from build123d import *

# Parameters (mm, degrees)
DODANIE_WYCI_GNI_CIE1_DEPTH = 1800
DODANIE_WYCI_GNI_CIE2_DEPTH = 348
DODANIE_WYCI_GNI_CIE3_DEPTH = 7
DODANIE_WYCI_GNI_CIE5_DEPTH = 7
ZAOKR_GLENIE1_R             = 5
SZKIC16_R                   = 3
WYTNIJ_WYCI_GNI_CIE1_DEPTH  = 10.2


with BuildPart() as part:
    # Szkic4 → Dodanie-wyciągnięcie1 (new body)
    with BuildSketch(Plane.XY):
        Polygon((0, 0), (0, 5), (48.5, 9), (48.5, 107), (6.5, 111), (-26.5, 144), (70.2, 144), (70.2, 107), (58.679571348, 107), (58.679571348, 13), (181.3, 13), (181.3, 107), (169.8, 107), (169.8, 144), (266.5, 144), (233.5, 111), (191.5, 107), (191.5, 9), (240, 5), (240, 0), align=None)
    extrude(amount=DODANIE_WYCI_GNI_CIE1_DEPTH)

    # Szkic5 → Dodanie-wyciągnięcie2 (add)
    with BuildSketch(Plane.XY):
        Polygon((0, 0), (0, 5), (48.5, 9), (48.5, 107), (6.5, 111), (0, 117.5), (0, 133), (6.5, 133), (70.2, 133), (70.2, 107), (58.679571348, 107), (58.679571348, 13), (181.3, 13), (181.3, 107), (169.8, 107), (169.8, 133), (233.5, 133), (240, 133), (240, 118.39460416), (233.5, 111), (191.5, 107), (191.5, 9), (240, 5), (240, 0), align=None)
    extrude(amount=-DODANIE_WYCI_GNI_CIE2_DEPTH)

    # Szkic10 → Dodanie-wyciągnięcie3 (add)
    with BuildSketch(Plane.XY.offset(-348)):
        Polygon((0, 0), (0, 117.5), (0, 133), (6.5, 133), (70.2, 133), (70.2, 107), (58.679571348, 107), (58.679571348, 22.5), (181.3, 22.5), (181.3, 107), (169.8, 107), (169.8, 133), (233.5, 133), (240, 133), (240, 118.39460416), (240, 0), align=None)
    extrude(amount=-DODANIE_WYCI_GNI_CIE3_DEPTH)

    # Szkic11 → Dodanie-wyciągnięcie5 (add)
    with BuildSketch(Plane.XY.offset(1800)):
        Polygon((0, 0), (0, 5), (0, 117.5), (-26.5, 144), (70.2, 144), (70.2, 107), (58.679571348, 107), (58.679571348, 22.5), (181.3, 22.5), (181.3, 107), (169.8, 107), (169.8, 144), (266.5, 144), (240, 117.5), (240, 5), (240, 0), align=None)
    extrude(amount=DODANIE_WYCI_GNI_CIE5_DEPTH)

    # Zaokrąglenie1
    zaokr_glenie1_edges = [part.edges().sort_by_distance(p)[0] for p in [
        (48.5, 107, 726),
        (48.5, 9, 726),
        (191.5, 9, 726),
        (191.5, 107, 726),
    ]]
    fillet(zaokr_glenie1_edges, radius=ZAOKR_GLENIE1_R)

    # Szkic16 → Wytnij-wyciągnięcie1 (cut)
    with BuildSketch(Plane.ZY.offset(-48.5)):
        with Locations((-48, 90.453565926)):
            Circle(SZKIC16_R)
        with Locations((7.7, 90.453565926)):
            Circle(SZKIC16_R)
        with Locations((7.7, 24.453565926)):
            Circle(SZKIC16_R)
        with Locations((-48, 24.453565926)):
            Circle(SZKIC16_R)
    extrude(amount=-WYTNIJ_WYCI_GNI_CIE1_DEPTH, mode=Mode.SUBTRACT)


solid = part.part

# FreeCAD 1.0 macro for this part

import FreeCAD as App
import Part
import Sketcher

V = App.Vector
Q = App.Units.Quantity


def edges_at(feature, points):
    """Names of the edges that pass closest to the given points."""
    edges = feature.Shape.Edges
    near = lambda p: min(range(len(edges)), key=lambda i: edges[i].distToShape(Part.Vertex(*p))[0])
    return sorted({f"Edge{near(p) + 1}" for p in points})

doc = App.newDocument("Part")
body = doc.addObject("PartDesign::Body", "Body")

sketch1 = doc.addObject("Sketcher::SketchObject", "Sketch")
body.addObject(sketch1)
sketch1.AttachmentSupport = (doc.XY_Plane, [""])
sketch1.MapMode = "FlatFace"
sketch1.addGeometry([
    Part.LineSegment(V(0, 5, 0), V(0, 0, 0)),
    Part.LineSegment(V(0, 0, 0), V(240, 0, 0)),
    Part.LineSegment(V(240, 0, 0), V(240, 5, 0)),
    Part.LineSegment(V(240, 5, 0), V(192, 9, 0)),
    Part.LineSegment(V(192, 9, 0), V(192, 107, 0)),
    Part.LineSegment(V(192, 107, 0), V(234, 111, 0)),
    Part.LineSegment(V(234, 111, 0), V(266, 144, 0)),
    Part.LineSegment(V(266, 144, 0), V(170, 144, 0)),
    Part.LineSegment(V(170, 144, 0), V(170, 107, 0)),
    Part.LineSegment(V(170, 107, 0), V(181, 107, 0)),
    Part.LineSegment(V(181, 107, 0), V(181, 13, 0)),
    Part.LineSegment(V(181, 13, 0), V(59, 13, 0)),
    Part.LineSegment(V(59, 13, 0), V(59, 107, 0)),
    Part.LineSegment(V(59, 107, 0), V(70, 107, 0)),
    Part.LineSegment(V(70, 107, 0), V(70, 144, 0)),
    Part.LineSegment(V(70, 144, 0), V(-26, 144, 0)),
    Part.LineSegment(V(-26, 144, 0), V(6, 111, 0)),
    Part.LineSegment(V(6, 111, 0), V(48, 107, 0)),
    Part.LineSegment(V(48, 107, 0), V(48, 9, 0)),
    Part.LineSegment(V(48, 9, 0), V(0, 5, 0)),
], False)
sketch1.addConstraint([
    Sketcher.Constraint("Coincident", 0, 2, 1, 1),
    Sketcher.Constraint("Coincident", 1, 2, 2, 1),
    Sketcher.Constraint("Coincident", 2, 2, 3, 1),
    Sketcher.Constraint("Coincident", 3, 2, 4, 1),
    Sketcher.Constraint("Coincident", 4, 2, 5, 1),
    Sketcher.Constraint("Coincident", 5, 2, 6, 1),
    Sketcher.Constraint("Coincident", 6, 2, 7, 1),
    Sketcher.Constraint("Coincident", 7, 2, 8, 1),
    Sketcher.Constraint("Coincident", 8, 2, 9, 1),
    Sketcher.Constraint("Coincident", 9, 2, 10, 1),
    Sketcher.Constraint("Coincident", 10, 2, 11, 1),
    Sketcher.Constraint("Coincident", 11, 2, 12, 1),
    Sketcher.Constraint("Coincident", 12, 2, 13, 1),
    Sketcher.Constraint("Coincident", 13, 2, 14, 1),
    Sketcher.Constraint("Coincident", 14, 2, 15, 1),
    Sketcher.Constraint("Coincident", 15, 2, 16, 1),
    Sketcher.Constraint("Coincident", 16, 2, 17, 1),
    Sketcher.Constraint("Coincident", 17, 2, 18, 1),
    Sketcher.Constraint("Coincident", 18, 2, 19, 1),
    Sketcher.Constraint("Coincident", 19, 2, 0, 1),
    Sketcher.Constraint("Vertical", 0),
    Sketcher.Constraint("Horizontal", 1),
    Sketcher.Constraint("Vertical", 2),
    Sketcher.Constraint("Vertical", 4),
    Sketcher.Constraint("Horizontal", 7),
    Sketcher.Constraint("Vertical", 8),
    Sketcher.Constraint("Horizontal", 9),
    Sketcher.Constraint("Vertical", 10),
    Sketcher.Constraint("Horizontal", 11),
    Sketcher.Constraint("Vertical", 12),
    Sketcher.Constraint("Horizontal", 13),
    Sketcher.Constraint("Vertical", 14),
    Sketcher.Constraint("Horizontal", 15),
    Sketcher.Constraint("Vertical", 18),
    Sketcher.Constraint("Coincident", 0, 2, -1, 1),
    Sketcher.Constraint("Perpendicular", 6, 16),
    Sketcher.Constraint("Horizontal", 4, 2, 8, 2),
    Sketcher.Constraint("Horizontal", 9, 2, 12, 2),
    Sketcher.Constraint("Horizontal", 7, 2, 14, 2),
    Sketcher.Constraint("Horizontal", 5, 2, 16, 2),
    Sketcher.Constraint("Horizontal", 13, 2, 17, 2),
    Sketcher.Constraint("Horizontal", 3, 2, 18, 2),
    Sketcher.Constraint("Horizontal", 2, 2, 19, 2),
    Sketcher.Constraint("Equal", 7, 15),
    Sketcher.Constraint("Equal", 6, 16),
    Sketcher.Constraint("Equal", 5, 17),
    Sketcher.Constraint("Equal", 3, 19),
    Sketcher.Constraint("DistanceX", 1, 1, 1, 2, 240.0),
    Sketcher.Constraint("DistanceY", 0, 2, 0, 1, 5.0),
    Sketcher.Constraint("DistanceY", 4, 1, 4, 2, 98.0),
    Sketcher.Constraint("DistanceY", 8, 2, 8, 1, 37.0),
    Sketcher.Constraint("DistanceY", 10, 2, 10, 1, 94.0),
    Sketcher.Constraint("DistanceX", 7, 2, 7, 1, 96.7),
    Sketcher.Constraint("DistanceX", 9, 1, 9, 2, 11.5),
    Sketcher.Constraint("DistanceY", -1, 1, 3, 2, 9.0),
    Sketcher.Constraint("DistanceY", -1, 1, 5, 2, 111.0),
    Sketcher.Constraint("DistanceX", 4, 2, 5, 2, 42.0),
    Sketcher.Constraint("DistanceX", -1, 1, 3, 2, 191.5),
    Sketcher.Constraint("DistanceX", 11, 2, 11, 1, 122.620429),
])
pad1 = doc.addObject("PartDesign::Pad", "Pad")
body.addObject(pad1)
pad1.Profile = sketch1
pad1.Length = 1800

sketch2 = doc.addObject("Sketcher::SketchObject", "Sketch001")
body.addObject(sketch2)
sketch2.AttachmentSupport = (doc.XY_Plane, [""])
sketch2.MapMode = "FlatFace"
sketch2.addGeometry([
    Part.LineSegment(V(0, 5, 0), V(0, 0, 0)),
    Part.LineSegment(V(0, 0, 0), V(240, 0, 0)),
    Part.LineSegment(V(240, 0, 0), V(240, 5, 0)),
    Part.LineSegment(V(240, 5, 0), V(192, 9, 0)),
    Part.LineSegment(V(192, 9, 0), V(192, 107, 0)),
    Part.LineSegment(V(192, 107, 0), V(234, 111, 0)),
    Part.LineSegment(V(234, 111, 0), V(240, 118, 0)),
    Part.LineSegment(V(240, 118, 0), V(240, 133, 0)),
    Part.LineSegment(V(240, 133, 0), V(170, 133, 0)),
    Part.LineSegment(V(170, 133, 0), V(170, 107, 0)),
    Part.LineSegment(V(170, 107, 0), V(181, 107, 0)),
    Part.LineSegment(V(181, 107, 0), V(181, 13, 0)),
    Part.LineSegment(V(181, 13, 0), V(59, 13, 0)),
    Part.LineSegment(V(59, 13, 0), V(59, 107, 0)),
    Part.LineSegment(V(59, 107, 0), V(70, 107, 0)),
    Part.LineSegment(V(70, 107, 0), V(70, 133, 0)),
    Part.LineSegment(V(70, 133, 0), V(0, 133, 0)),
    Part.LineSegment(V(0, 133, 0), V(0, 118, 0)),
    Part.LineSegment(V(0, 118, 0), V(6, 111, 0)),
    Part.LineSegment(V(6, 111, 0), V(48, 107, 0)),
    Part.LineSegment(V(48, 107, 0), V(48, 9, 0)),
    Part.LineSegment(V(48, 9, 0), V(0, 5, 0)),
], False)
sketch2.addConstraint([
    Sketcher.Constraint("Coincident", 0, 2, 1, 1),
    Sketcher.Constraint("Coincident", 1, 2, 2, 1),
    Sketcher.Constraint("Coincident", 2, 2, 3, 1),
    Sketcher.Constraint("Coincident", 3, 2, 4, 1),
    Sketcher.Constraint("Coincident", 4, 2, 5, 1),
    Sketcher.Constraint("Coincident", 5, 2, 6, 1),
    Sketcher.Constraint("Coincident", 6, 2, 7, 1),
    Sketcher.Constraint("Coincident", 7, 2, 8, 1),
    Sketcher.Constraint("Coincident", 8, 2, 9, 1),
    Sketcher.Constraint("Coincident", 9, 2, 10, 1),
    Sketcher.Constraint("Coincident", 10, 2, 11, 1),
    Sketcher.Constraint("Coincident", 11, 2, 12, 1),
    Sketcher.Constraint("Coincident", 12, 2, 13, 1),
    Sketcher.Constraint("Coincident", 13, 2, 14, 1),
    Sketcher.Constraint("Coincident", 14, 2, 15, 1),
    Sketcher.Constraint("Coincident", 15, 2, 16, 1),
    Sketcher.Constraint("Coincident", 16, 2, 17, 1),
    Sketcher.Constraint("Coincident", 17, 2, 18, 1),
    Sketcher.Constraint("Coincident", 18, 2, 19, 1),
    Sketcher.Constraint("Coincident", 19, 2, 20, 1),
    Sketcher.Constraint("Coincident", 20, 2, 21, 1),
    Sketcher.Constraint("Coincident", 21, 2, 0, 1),
    Sketcher.Constraint("Vertical", 0),
    Sketcher.Constraint("Horizontal", 1),
    Sketcher.Constraint("Vertical", 2),
    Sketcher.Constraint("Vertical", 4),
    Sketcher.Constraint("Vertical", 7),
    Sketcher.Constraint("Horizontal", 8),
    Sketcher.Constraint("Vertical", 9),
    Sketcher.Constraint("Horizontal", 10),
    Sketcher.Constraint("Vertical", 11),
    Sketcher.Constraint("Horizontal", 12),
    Sketcher.Constraint("Vertical", 13),
    Sketcher.Constraint("Horizontal", 14),
    Sketcher.Constraint("Vertical", 15),
    Sketcher.Constraint("Horizontal", 16),
    Sketcher.Constraint("Vertical", 17),
    Sketcher.Constraint("Vertical", 20),
    Sketcher.Constraint("Coincident", 0, 2, -1, 1),
    Sketcher.Constraint("PointOnObject", 16, 2, -2),
    Sketcher.Constraint("Horizontal", 4, 2, 9, 2),
    Sketcher.Constraint("Horizontal", 10, 2, 13, 2),
    Sketcher.Constraint("Horizontal", 8, 2, 15, 2),
    Sketcher.Constraint("Horizontal", 5, 2, 18, 2),
    Sketcher.Constraint("Horizontal", 14, 2, 19, 2),
    Sketcher.Constraint("Horizontal", 3, 2, 20, 2),
    Sketcher.Constraint("Horizontal", 2, 2, 21, 2),
    Sketcher.Constraint("Vertical", 2, 2, 6, 2),
    Sketcher.Constraint("Equal", 8, 16),
    Sketcher.Constraint("Equal", 5, 19),
    Sketcher.Constraint("Equal", 3, 21),
    Sketcher.Constraint("DistanceX", 1, 1, 1, 2, 240.0),
    Sketcher.Constraint("DistanceY", 0, 2, 0, 1, 5.0),
    Sketcher.Constraint("DistanceY", 4, 1, 4, 2, 98.0),
    Sketcher.Constraint("DistanceY", 9, 2, 9, 1, 26.0),
    Sketcher.Constraint("DistanceY", 11, 2, 11, 1, 94.0),
    Sketcher.Constraint("Angle", 18, Q("-45 deg")),
    Sketcher.Constraint("DistanceX", 8, 2, 8, 1, 70.2),
    Sketcher.Constraint("DistanceX", 10, 1, 10, 2, 11.5),
    Sketcher.Constraint("DistanceY", 17, 2, 17, 1, 15.5),
    Sketcher.Constraint("DistanceY", -1, 1, 3, 2, 9.0),
    Sketcher.Constraint("DistanceY", -1, 1, 5, 2, 111.0),
    Sketcher.Constraint("DistanceX", 4, 2, 5, 2, 42.0),
    Sketcher.Constraint("DistanceX", 12, 2, 12, 1, 122.620429),
    Sketcher.Constraint("DistanceY", 7, 1, 7, 2, 14.605396),
])
pad2 = doc.addObject("PartDesign::Pad", "Pad001")
body.addObject(pad2)
pad2.Profile = sketch2
pad2.Length = 348
pad2.Reversed = True

sketch3 = doc.addObject("Sketcher::SketchObject", "Sketch002")
body.addObject(sketch3)
sketch3.AttachmentSupport = (doc.XY_Plane, [""])
sketch3.MapMode = "FlatFace"
sketch3.AttachmentOffset = App.Placement(V(0, 0, -348), App.Rotation())
sketch3.addGeometry([
    Part.LineSegment(V(0, 133, 0), V(0, 0, 0)),
    Part.LineSegment(V(0, 0, 0), V(240, 0, 0)),
    Part.LineSegment(V(240, 0, 0), V(240, 133, 0)),
    Part.LineSegment(V(240, 133, 0), V(170, 133, 0)),
    Part.LineSegment(V(170, 133, 0), V(170, 107, 0)),
    Part.LineSegment(V(170, 107, 0), V(181, 107, 0)),
    Part.LineSegment(V(181, 107, 0), V(181, 22, 0)),
    Part.LineSegment(V(181, 22, 0), V(59, 22, 0)),
    Part.LineSegment(V(59, 22, 0), V(59, 107, 0)),
    Part.LineSegment(V(59, 107, 0), V(70, 107, 0)),
    Part.LineSegment(V(70, 107, 0), V(70, 133, 0)),
    Part.LineSegment(V(70, 133, 0), V(0, 133, 0)),
], False)
sketch3.addConstraint([
    Sketcher.Constraint("Coincident", 0, 2, 1, 1),
    Sketcher.Constraint("Coincident", 1, 2, 2, 1),
    Sketcher.Constraint("Coincident", 2, 2, 3, 1),
    Sketcher.Constraint("Coincident", 3, 2, 4, 1),
    Sketcher.Constraint("Coincident", 4, 2, 5, 1),
    Sketcher.Constraint("Coincident", 5, 2, 6, 1),
    Sketcher.Constraint("Coincident", 6, 2, 7, 1),
    Sketcher.Constraint("Coincident", 7, 2, 8, 1),
    Sketcher.Constraint("Coincident", 8, 2, 9, 1),
    Sketcher.Constraint("Coincident", 9, 2, 10, 1),
    Sketcher.Constraint("Coincident", 10, 2, 11, 1),
    Sketcher.Constraint("Coincident", 11, 2, 0, 1),
    Sketcher.Constraint("Vertical", 0),
    Sketcher.Constraint("Horizontal", 1),
    Sketcher.Constraint("Vertical", 2),
    Sketcher.Constraint("Horizontal", 3),
    Sketcher.Constraint("Vertical", 4),
    Sketcher.Constraint("Horizontal", 5),
    Sketcher.Constraint("Vertical", 6),
    Sketcher.Constraint("Horizontal", 7),
    Sketcher.Constraint("Vertical", 8),
    Sketcher.Constraint("Horizontal", 9),
    Sketcher.Constraint("Vertical", 10),
    Sketcher.Constraint("Horizontal", 11),
    Sketcher.Constraint("Coincident", 0, 2, -1, 1),
    Sketcher.Constraint("Horizontal", 5, 2, 8, 2),
    Sketcher.Constraint("Horizontal", 3, 2, 10, 2),
    Sketcher.Constraint("Equal", 3, 11),
    Sketcher.Constraint("DistanceX", 1, 1, 1, 2, 240.0),
    Sketcher.Constraint("DistanceY", 0, 2, 0, 1, 133.0),
    Sketcher.Constraint("DistanceY", 4, 2, 4, 1, 26.0),
    Sketcher.Constraint("DistanceX", 3, 2, 3, 1, 70.2),
    Sketcher.Constraint("DistanceX", 5, 1, 5, 2, 11.5),
    Sketcher.Constraint("DistanceY", 6, 2, 6, 1, 84.5),
    Sketcher.Constraint("DistanceX", 7, 2, 7, 1, 122.620429),
])
pad3 = doc.addObject("PartDesign::Pad", "Pad002")
body.addObject(pad3)
pad3.Profile = sketch3
pad3.Length = 7
pad3.Reversed = True

sketch4 = doc.addObject("Sketcher::SketchObject", "Sketch003")
body.addObject(sketch4)
sketch4.AttachmentSupport = (doc.XY_Plane, [""])
sketch4.MapMode = "FlatFace"
sketch4.AttachmentOffset = App.Placement(V(0, 0, 1800), App.Rotation())
sketch4.addGeometry([
    Part.LineSegment(V(0, 118, 0), V(0, 0, 0)),
    Part.LineSegment(V(0, 0, 0), V(240, 0, 0)),
    Part.LineSegment(V(240, 0, 0), V(240, 118, 0)),
    Part.LineSegment(V(240, 118, 0), V(266, 144, 0)),
    Part.LineSegment(V(266, 144, 0), V(170, 144, 0)),
    Part.LineSegment(V(170, 144, 0), V(170, 107, 0)),
    Part.LineSegment(V(170, 107, 0), V(181, 107, 0)),
    Part.LineSegment(V(181, 107, 0), V(181, 22, 0)),
    Part.LineSegment(V(181, 22, 0), V(59, 22, 0)),
    Part.LineSegment(V(59, 22, 0), V(59, 107, 0)),
    Part.LineSegment(V(59, 107, 0), V(70, 107, 0)),
    Part.LineSegment(V(70, 107, 0), V(70, 144, 0)),
    Part.LineSegment(V(70, 144, 0), V(-26, 144, 0)),
    Part.LineSegment(V(-26, 144, 0), V(0, 118, 0)),
], False)
sketch4.addConstraint([
    Sketcher.Constraint("Coincident", 0, 2, 1, 1),
    Sketcher.Constraint("Coincident", 1, 2, 2, 1),
    Sketcher.Constraint("Coincident", 2, 2, 3, 1),
    Sketcher.Constraint("Coincident", 3, 2, 4, 1),
    Sketcher.Constraint("Coincident", 4, 2, 5, 1),
    Sketcher.Constraint("Coincident", 5, 2, 6, 1),
    Sketcher.Constraint("Coincident", 6, 2, 7, 1),
    Sketcher.Constraint("Coincident", 7, 2, 8, 1),
    Sketcher.Constraint("Coincident", 8, 2, 9, 1),
    Sketcher.Constraint("Coincident", 9, 2, 10, 1),
    Sketcher.Constraint("Coincident", 10, 2, 11, 1),
    Sketcher.Constraint("Coincident", 11, 2, 12, 1),
    Sketcher.Constraint("Coincident", 12, 2, 13, 1),
    Sketcher.Constraint("Coincident", 13, 2, 0, 1),
    Sketcher.Constraint("Vertical", 0),
    Sketcher.Constraint("Horizontal", 1),
    Sketcher.Constraint("Vertical", 2),
    Sketcher.Constraint("Horizontal", 4),
    Sketcher.Constraint("Vertical", 5),
    Sketcher.Constraint("Horizontal", 6),
    Sketcher.Constraint("Vertical", 7),
    Sketcher.Constraint("Horizontal", 8),
    Sketcher.Constraint("Vertical", 9),
    Sketcher.Constraint("Horizontal", 10),
    Sketcher.Constraint("Vertical", 11),
    Sketcher.Constraint("Horizontal", 12),
    Sketcher.Constraint("Coincident", 0, 2, -1, 1),
    Sketcher.Constraint("Perpendicular", 3, 13),
    Sketcher.Constraint("Horizontal", 6, 2, 9, 2),
    Sketcher.Constraint("Horizontal", 4, 2, 11, 2),
    Sketcher.Constraint("Horizontal", 2, 2, 13, 2),
    Sketcher.Constraint("Equal", 4, 12),
    Sketcher.Constraint("Equal", 3, 13),
    Sketcher.Constraint("DistanceX", 1, 1, 1, 2, 240.0),
    Sketcher.Constraint("DistanceY", 5, 2, 5, 1, 37.0),
    Sketcher.Constraint("DistanceX", 4, 2, 4, 1, 96.7),
    Sketcher.Constraint("DistanceX", 6, 1, 6, 2, 11.5),
    Sketcher.Constraint("DistanceY", 0, 2, 0, 1, 117.5),
    Sketcher.Constraint("DistanceY", 7, 2, 7, 1, 84.5),
    Sketcher.Constraint("DistanceY", -1, 1, 3, 2, 144.0),
    Sketcher.Constraint("DistanceX", 8, 2, 8, 1, 122.620429),
])
pad4 = doc.addObject("PartDesign::Pad", "Pad003")
body.addObject(pad4)
pad4.Profile = sketch4
pad4.Length = 7
doc.recompute()

fillet = doc.addObject("PartDesign::Fillet", "Fillet")
body.addObject(fillet)
fillet.Base = (pad4, edges_at(pad4, [
    (48.5, 107, 726),
    (48.5, 9, 726),
    (191.5, 9, 726),
    (191.5, 107, 726),
]))
fillet.Radius = 5

sketch5 = doc.addObject("Sketcher::SketchObject", "Sketch004")
body.addObject(sketch5)
sketch5.AttachmentSupport = (doc.YZ_Plane, [""])
sketch5.MapMode = "FlatFace"
sketch5.AttachmentOffset = App.Placement(V(0, 0, 48.5), App.Rotation())
sketch5.addGeometry([
    Part.Circle(V(90.5, -48, 0), V(0, 0, 1), 3),
    Part.Circle(V(90.5, 7.7, 0), V(0, 0, 1), 3),
    Part.Circle(V(24.5, 7.7, 0), V(0, 0, 1), 3),
    Part.Circle(V(24.5, -48, 0), V(0, 0, 1), 3),
], False)
sketch5.addConstraint([
    Sketcher.Constraint("Equal", 0, 1),
    Sketcher.Constraint("Equal", 1, 2),
    Sketcher.Constraint("Equal", 2, 3),
    Sketcher.Constraint("Horizontal", 1, 3, 2, 3),
    Sketcher.Constraint("Horizontal", 0, 3, 3, 3),
    Sketcher.Constraint("Vertical", 0, 3, 1, 3),
    Sketcher.Constraint("Vertical", 2, 3, 3, 3),
    Sketcher.Constraint("Diameter", 0, 6.0),
    Sketcher.Constraint("DistanceY", 0, 3, -1, 1, 48.0),
    Sketcher.Constraint("DistanceX", 2, 3, 1, 3, 66.0),
    Sketcher.Constraint("DistanceY", -1, 1, 1, 3, 7.7),
    Sketcher.Constraint("DistanceX", -1, 1, 0, 3, 90.453566),
])
pocket1 = doc.addObject("PartDesign::Pocket", "Pocket")
body.addObject(pocket1)
pocket1.Profile = sketch5
pocket1.Length = 10.2
pocket1.Reversed = True

doc.recompute()
